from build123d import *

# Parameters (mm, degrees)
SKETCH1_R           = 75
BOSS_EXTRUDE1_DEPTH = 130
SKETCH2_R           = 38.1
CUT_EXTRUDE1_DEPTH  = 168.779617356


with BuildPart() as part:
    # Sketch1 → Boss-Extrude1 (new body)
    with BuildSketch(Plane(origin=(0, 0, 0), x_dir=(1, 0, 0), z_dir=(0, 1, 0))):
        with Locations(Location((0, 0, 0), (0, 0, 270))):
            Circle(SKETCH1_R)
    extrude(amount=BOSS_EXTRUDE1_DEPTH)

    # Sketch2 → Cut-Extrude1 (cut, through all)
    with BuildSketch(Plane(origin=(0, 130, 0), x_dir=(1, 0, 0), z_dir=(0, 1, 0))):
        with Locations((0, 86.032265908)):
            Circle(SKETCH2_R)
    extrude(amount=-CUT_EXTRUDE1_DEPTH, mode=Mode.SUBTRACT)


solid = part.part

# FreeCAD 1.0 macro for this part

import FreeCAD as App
import Part
import Sketcher
from FreeCAD import Vector

doc = App.newDocument("Part")
body = doc.addObject("PartDesign::Body", "Body")

# Sketch on XZ plane
sketch1 = doc.addObject("Sketcher::SketchObject", "Sketch")
body.addObject(sketch1)
sketch1.AttachmentSupport = (doc.XZ_Plane, [""])
sketch1.MapMode = "FlatFace"
sketch1.addGeometry(Part.Circle(Vector(0, 0, 0), Vector(0, 0, 1), 75), False)
sketch1.addConstraint([
    Sketcher.Constraint("Coincident", 0, 3, -1, 1),
    Sketcher.Constraint("Diameter", 0, 150.0),
])
pad1 = doc.addObject("PartDesign::Pad", "Pad")
body.addObject(pad1)
pad1.Profile = sketch1
pad1.Length = 130
pad1.Reversed = True

# Sketch on XZ plane
sketch2 = doc.addObject("Sketcher::SketchObject", "Sketch001")
body.addObject(sketch2)
sketch2.AttachmentSupport = (doc.XZ_Plane, [""])
sketch2.MapMode = "FlatFace"
sketch2.AttachmentOffset = App.Placement(Vector(0, 0, -130), App.Rotation())
sketch2.addGeometry(Part.Circle(Vector(0, -86, 0), Vector(0, 0, 1), 38), False)
sketch2.addConstraint([
    Sketcher.Constraint("PointOnObject", 0, 3, -2),
    Sketcher.Constraint("Diameter", 0, 76.2),
    Sketcher.Constraint("DistanceY", 0, 3, -1, 1, 86.032266),
])
pocket1 = doc.addObject("PartDesign::Pocket", "Pocket")
body.addObject(pocket1)
pocket1.Profile = sketch2
pocket1.Type = "ThroughAll"
pocket1.Reversed = True

doc.recompute()
